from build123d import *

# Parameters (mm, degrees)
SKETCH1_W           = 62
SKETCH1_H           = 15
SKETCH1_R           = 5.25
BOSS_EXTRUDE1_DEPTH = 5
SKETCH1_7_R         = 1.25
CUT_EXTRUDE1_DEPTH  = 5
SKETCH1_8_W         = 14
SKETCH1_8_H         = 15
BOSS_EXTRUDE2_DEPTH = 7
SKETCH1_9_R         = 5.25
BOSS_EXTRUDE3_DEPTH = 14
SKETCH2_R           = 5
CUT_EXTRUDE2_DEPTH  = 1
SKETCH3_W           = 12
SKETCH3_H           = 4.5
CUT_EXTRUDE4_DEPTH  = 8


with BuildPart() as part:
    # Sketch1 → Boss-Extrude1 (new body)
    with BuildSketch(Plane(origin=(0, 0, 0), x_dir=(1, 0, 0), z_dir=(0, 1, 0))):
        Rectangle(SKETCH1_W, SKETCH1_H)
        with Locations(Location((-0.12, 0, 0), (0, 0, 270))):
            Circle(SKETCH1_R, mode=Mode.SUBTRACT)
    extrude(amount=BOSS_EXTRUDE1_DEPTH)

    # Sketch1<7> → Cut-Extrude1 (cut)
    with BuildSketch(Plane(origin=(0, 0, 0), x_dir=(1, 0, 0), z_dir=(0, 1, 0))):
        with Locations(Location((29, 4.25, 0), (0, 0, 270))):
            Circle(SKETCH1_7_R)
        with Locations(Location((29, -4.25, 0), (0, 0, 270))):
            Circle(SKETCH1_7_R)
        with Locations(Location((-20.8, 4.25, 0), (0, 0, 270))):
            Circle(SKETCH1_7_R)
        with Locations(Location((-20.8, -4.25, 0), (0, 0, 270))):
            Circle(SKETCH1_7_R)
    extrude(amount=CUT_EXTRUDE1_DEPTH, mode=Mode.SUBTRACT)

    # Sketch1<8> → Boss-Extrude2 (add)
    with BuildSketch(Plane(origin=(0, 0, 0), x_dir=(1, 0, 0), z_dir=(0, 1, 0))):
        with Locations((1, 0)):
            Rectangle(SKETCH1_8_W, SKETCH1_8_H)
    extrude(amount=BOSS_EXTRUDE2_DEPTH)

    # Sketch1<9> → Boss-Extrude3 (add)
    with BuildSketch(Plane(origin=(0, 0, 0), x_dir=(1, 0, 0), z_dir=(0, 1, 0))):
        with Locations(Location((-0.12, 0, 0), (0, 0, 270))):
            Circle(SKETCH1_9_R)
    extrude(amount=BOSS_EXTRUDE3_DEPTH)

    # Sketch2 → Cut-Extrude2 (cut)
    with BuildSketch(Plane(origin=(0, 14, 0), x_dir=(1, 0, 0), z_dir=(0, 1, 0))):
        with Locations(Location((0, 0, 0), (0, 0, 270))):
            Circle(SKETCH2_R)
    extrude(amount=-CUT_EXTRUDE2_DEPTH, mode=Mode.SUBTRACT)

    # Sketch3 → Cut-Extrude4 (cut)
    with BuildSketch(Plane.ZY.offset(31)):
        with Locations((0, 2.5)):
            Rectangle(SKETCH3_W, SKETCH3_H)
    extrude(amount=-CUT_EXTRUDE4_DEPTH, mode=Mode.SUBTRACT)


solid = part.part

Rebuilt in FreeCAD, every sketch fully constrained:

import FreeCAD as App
import Part
import Sketcher
from FreeCAD import Vector

doc = App.newDocument("Part")
body = doc.addObject("PartDesign::Body", "Body")

# Sketch on XZ plane
sketch1 = body.newObject("Sketcher::SketchObject", "Sketch")
sketch1.AttachmentSupport = (doc.getObject("XZ_Plane"), [""])
sketch1.MapMode = "FlatFace"
sketch1.addGeometry([
    Part.LineSegment(Vector(-31, -8, 0), Vector(-31, 8, 0)),  # 0
    Part.LineSegment(Vector(-31, 8, 0), Vector(31, 8, 0)),  # 1
    Part.LineSegment(Vector(31, 8, 0), Vector(31, -8, 0)),  # 2
    Part.LineSegment(Vector(31, -8, 0), Vector(-31, -8, 0)),  # 3
    Part.Circle(Vector(0, 0, 0), Vector(0, 0, 1), 5),  # 4
], False)
sketch1.addConstraint([
    Sketcher.Constraint("Coincident", 0, 2, 1, 1),
    Sketcher.Constraint("Coincident", 1, 2, 2, 1),
    Sketcher.Constraint("Coincident", 2, 2, 3, 1),
    Sketcher.Constraint("Coincident", 3, 2, 0, 1),
    Sketcher.Constraint("Vertical", 0),
    Sketcher.Constraint("Horizontal", 1),
    Sketcher.Constraint("Vertical", 2),
    Sketcher.Constraint("Horizontal", 3),
    Sketcher.Constraint("Symmetric", 0, 2, 2, 2, -1, 1),
    Sketcher.Constraint("PointOnObject", 4, 3, -1),
    Sketcher.Constraint("Diameter", 4, 10.5),
    Sketcher.Constraint("DistanceX", 1, 1, 1, 2, 62.0),
    Sketcher.Constraint("DistanceY", 0, 1, 0, 2, 15.0),
    Sketcher.Constraint("DistanceX", 4, 3, -1, 1, 0.12),
])
pad1 = body.newObject("PartDesign::Pad", "Pad")
pad1.Profile = sketch1
pad1.Length = 5
pad1.Reversed = True

# Sketch on XZ plane
sketch2 = body.newObject("Sketcher::SketchObject", "Sketch001")
sketch2.AttachmentSupport = (doc.getObject("XZ_Plane"), [""])
sketch2.MapMode = "FlatFace"
sketch2.addGeometry([
    Part.Circle(Vector(29, -4.2, 0), Vector(0, 0, 1), 1.2),
    Part.Circle(Vector(29, 4.2, 0), Vector(0, 0, 1), 1.2),
    Part.Circle(Vector(-20.8, -4.2, 0), Vector(0, 0, 1), 1.2),
    Part.Circle(Vector(-20.8, 4.2, 0), Vector(0, 0, 1), 1.2),
], False)
sketch2.addConstraint([
    Sketcher.Constraint("Equal", 0, 1),
    Sketcher.Constraint("Equal", 1, 2),
    Sketcher.Constraint("Equal", 2, 3),
    Sketcher.Constraint("Symmetric", 0, 3, 1, 3, -1),
    Sketcher.Constraint("Symmetric", 2, 3, 3, 3, -1),
    Sketcher.Constraint("Horizontal", 0, 3, 2, 3),
    Sketcher.Constraint("Diameter", 0, 2.5),
    Sketcher.Constraint("DistanceX", -1, 1, 0, 3, 29.0),
    Sketcher.Constraint("DistanceX", 2, 3, -1, 1, 20.8),
    Sketcher.Constraint("DistanceY", 0, 3, 1, 3, 8.5),
])
pocket1 = body.newObject("PartDesign::Pocket", "Pocket")
pocket1.Profile = sketch2
pocket1.Length = 5

# Sketch on XZ plane
sketch3 = body.newObject("Sketcher::SketchObject", "Sketch002")
sketch3.AttachmentSupport = (doc.getObject("XZ_Plane"), [""])
sketch3.MapMode = "FlatFace"
sketch3.addGeometry([
    Part.LineSegment(Vector(-6, -8, 0), Vector(-6, 8, 0)),
    Part.LineSegment(Vector(-6, 8, 0), Vector(8, 8, 0)),
    Part.LineSegment(Vector(8, 8, 0), Vector(8, -8, 0)),
    Part.LineSegment(Vector(8, -8, 0), Vector(-6, -8, 0)),
], False)
sketch3.addConstraint([
    Sketcher.Constraint("Coincident", 0, 2, 1, 1),
    Sketcher.Constraint("Coincident", 1, 2, 2, 1),
    Sketcher.Constraint("Coincident", 2, 2, 3, 1),
    Sketcher.Constraint("Coincident", 3, 2, 0, 1),
    Sketcher.Constraint("Vertical", 0),
    Sketcher.Constraint("Horizontal", 1),
    Sketcher.Constraint("Vertical", 2),
    Sketcher.Constraint("Horizontal", 3),
    Sketcher.Constraint("DistanceX", 1, 1, 1, 2, 14.0),
    Sketcher.Constraint("DistanceY", 0, 1, 0, 2, 15.0),
    Sketcher.Constraint("DistanceX", 0, 2, -1, 1, 6.0),
    Sketcher.Constraint("DistanceY", -1, 1, 0, 2, 7.5),
])
pad2 = body.newObject("PartDesign::Pad", "Pad001")
pad2.Profile = sketch3
pad2.Length = 7
pad2.Reversed = True

# Sketch on XZ plane
sketch4 = body.newObject("Sketcher::SketchObject", "Sketch003")
sketch4.AttachmentSupport = (doc.getObject("XZ_Plane"), [""])
sketch4.MapMode = "FlatFace"
sketch4.addGeometry(Part.Circle(Vector(0, 0, 0), Vector(0, 0, 1), 5), False)
sketch4.addConstraint([
    Sketcher.Constraint("PointOnObject", 0, 3, -1),
    Sketcher.Constraint("Diameter", 0, 10.5),
    Sketcher.Constraint("DistanceX", 0, 3, -1, 1, 0.12),
])
pad3 = body.newObject("PartDesign::Pad", "Pad002")
pad3.Profile = sketch4
pad3.Length = 14
pad3.Reversed = True

# Sketch on XZ plane
sketch5 = body.newObject("Sketcher::SketchObject", "Sketch004")
sketch5.AttachmentSupport = (doc.getObject("XZ_Plane"), [""])
sketch5.MapMode = "FlatFace"
sketch5.AttachmentOffset = App.Placement(Vector(0, 0, -14), App.Rotation())
sketch5.addGeometry(Part.Circle(Vector(0, 0, 0), Vector(0, 0, 1), 5), False)
sketch5.addConstraint([
    Sketcher.Constraint("Coincident", 0, 3, -1, 1),
    Sketcher.Constraint("Diameter", 0, 10.0),
])
pocket2 = body.newObject("PartDesign::Pocket", "Pocket001")
pocket2.Profile = sketch5
pocket2.Length = 1
pocket2.Reversed = True

# Sketch on YZ plane
sketch6 = body.newObject("Sketcher::SketchObject", "Sketch005")
sketch6.AttachmentSupport = (doc.getObject("YZ_Plane"), [""])
sketch6.MapMode = "FlatFace"
sketch6.AttachmentOffset = App.Placement(Vector(0, 0, -31), App.Rotation())
sketch6.addGeometry([
    Part.LineSegment(Vector(4.8, -6, 0), Vector(0.2, -6, 0)),
    Part.LineSegment(Vector(0.2, -6, 0), Vector(0.2, 6, 0)),
    Part.LineSegment(Vector(0.2, 6, 0), Vector(4.8, 6, 0)),
    Part.LineSegment(Vector(4.8, 6, 0), Vector(4.8, -6, 0)),
], False)
sketch6.addConstraint([
    Sketcher.Constraint("Coincident", 0, 2, 1, 1),
    Sketcher.Constraint("Coincident", 1, 2, 2, 1),
    Sketcher.Constraint("Coincident", 2, 2, 3, 1),
    Sketcher.Constraint("Coincident", 3, 2, 0, 1),
    Sketcher.Constraint("Horizontal", 0),
    Sketcher.Constraint("Vertical", 1),
    Sketcher.Constraint("Horizontal", 2),
    Sketcher.Constraint("Vertical", 3),
    Sketcher.Constraint("DistanceY", 1, 1, 1, 2, 12.0),
    Sketcher.Constraint("DistanceX", 0, 2, 0, 1, 4.5),
    Sketcher.Constraint("DistanceY", 0, 2, -1, 1, 6.0),
    Sketcher.Constraint("DistanceX", -1, 1, 0, 2, 0.25),
])
pocket3 = body.newObject("PartDesign::Pocket", "Pocket002")
pocket3.Profile = sketch6
pocket3.Length = 8
pocket3.Reversed = True

doc.recompute()
